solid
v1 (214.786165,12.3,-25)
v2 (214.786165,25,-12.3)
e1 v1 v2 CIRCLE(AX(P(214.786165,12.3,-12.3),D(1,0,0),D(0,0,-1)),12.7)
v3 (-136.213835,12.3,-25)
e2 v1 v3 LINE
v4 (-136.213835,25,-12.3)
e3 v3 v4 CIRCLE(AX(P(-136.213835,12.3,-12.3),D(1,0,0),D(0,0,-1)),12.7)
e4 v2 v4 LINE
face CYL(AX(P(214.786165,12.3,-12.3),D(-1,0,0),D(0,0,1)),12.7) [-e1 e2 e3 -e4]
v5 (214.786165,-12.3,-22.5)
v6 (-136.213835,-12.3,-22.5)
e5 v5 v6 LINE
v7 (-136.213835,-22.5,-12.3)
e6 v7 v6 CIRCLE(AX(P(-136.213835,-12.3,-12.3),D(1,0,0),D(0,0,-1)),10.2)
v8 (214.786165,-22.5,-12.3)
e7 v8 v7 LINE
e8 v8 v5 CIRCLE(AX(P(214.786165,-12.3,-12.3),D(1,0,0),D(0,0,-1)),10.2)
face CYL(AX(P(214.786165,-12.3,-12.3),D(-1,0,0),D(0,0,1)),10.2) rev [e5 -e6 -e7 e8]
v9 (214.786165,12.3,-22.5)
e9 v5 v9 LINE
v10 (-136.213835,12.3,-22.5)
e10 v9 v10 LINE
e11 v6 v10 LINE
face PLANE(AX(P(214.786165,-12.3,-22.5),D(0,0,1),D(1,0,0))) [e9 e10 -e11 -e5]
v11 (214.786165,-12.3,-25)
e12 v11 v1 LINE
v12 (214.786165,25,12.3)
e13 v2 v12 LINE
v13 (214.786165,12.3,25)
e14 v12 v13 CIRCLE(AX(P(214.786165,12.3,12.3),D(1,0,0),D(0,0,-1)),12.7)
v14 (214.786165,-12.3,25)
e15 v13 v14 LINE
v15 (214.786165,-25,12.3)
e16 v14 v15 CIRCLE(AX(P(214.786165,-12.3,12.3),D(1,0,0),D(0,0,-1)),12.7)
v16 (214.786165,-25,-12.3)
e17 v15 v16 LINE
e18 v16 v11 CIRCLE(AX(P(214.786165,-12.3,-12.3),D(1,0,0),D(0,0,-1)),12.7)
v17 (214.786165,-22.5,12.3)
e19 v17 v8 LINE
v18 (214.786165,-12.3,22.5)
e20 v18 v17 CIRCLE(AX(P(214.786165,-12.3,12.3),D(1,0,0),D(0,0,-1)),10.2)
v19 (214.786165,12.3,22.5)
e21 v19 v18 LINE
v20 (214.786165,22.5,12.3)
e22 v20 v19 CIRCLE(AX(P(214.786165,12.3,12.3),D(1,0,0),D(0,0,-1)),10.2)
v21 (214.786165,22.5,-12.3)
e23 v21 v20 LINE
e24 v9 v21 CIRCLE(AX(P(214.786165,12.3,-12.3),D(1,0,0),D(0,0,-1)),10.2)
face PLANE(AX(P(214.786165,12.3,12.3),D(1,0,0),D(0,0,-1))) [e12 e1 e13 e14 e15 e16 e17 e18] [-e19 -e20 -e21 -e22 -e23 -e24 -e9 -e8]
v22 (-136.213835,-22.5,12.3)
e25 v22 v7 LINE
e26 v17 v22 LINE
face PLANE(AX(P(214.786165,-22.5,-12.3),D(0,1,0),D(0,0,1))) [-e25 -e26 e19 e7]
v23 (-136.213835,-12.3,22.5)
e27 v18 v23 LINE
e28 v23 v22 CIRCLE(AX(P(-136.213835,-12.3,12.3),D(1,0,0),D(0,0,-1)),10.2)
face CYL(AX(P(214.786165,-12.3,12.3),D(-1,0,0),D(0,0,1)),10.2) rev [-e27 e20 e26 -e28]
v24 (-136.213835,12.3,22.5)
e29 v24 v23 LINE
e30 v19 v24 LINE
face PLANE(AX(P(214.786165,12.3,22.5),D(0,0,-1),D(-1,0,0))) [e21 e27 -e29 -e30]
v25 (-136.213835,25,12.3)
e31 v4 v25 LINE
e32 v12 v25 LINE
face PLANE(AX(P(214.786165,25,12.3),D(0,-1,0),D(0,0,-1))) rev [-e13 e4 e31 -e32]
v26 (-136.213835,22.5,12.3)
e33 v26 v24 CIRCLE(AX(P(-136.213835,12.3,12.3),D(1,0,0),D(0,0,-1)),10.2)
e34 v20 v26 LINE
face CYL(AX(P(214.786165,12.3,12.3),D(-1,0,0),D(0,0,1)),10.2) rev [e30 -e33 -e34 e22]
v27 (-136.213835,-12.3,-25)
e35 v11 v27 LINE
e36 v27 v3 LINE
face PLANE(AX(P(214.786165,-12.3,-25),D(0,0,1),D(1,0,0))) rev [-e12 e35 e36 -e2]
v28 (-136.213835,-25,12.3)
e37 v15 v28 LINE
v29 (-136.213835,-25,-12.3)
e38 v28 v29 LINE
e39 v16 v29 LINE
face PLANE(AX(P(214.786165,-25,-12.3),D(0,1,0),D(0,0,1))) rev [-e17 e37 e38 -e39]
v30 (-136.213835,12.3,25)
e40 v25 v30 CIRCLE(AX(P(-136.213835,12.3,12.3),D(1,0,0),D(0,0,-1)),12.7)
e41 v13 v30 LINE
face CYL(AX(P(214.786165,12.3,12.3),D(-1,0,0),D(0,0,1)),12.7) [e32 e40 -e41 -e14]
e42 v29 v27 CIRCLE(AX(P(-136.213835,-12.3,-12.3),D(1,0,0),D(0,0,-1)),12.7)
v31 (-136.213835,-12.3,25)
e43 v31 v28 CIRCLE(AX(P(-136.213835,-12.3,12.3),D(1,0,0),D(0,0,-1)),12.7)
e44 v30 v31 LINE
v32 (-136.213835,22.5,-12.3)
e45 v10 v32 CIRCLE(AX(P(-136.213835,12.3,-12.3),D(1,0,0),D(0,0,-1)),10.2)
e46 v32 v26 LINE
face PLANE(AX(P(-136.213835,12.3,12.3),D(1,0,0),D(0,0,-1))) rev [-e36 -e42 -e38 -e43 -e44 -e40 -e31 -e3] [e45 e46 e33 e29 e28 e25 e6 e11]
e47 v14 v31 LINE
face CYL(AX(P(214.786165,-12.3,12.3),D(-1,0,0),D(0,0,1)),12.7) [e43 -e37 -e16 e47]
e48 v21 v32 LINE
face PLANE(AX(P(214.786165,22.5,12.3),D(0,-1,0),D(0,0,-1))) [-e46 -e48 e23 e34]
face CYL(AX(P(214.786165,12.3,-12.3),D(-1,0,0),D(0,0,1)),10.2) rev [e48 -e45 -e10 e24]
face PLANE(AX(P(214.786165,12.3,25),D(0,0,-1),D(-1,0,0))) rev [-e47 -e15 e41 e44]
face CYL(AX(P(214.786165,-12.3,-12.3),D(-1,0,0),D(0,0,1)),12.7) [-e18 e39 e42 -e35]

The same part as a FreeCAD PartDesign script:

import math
import FreeCAD as App
import Part
import Sketcher

V = App.Vector

doc = App.newDocument("Part")
params = doc.addObject("Spreadsheet::Sheet", "Params")
for row, (alias, value) in enumerate([
    ("sketch1_radius", "12.7 mm"),
    ("sketch1_radius2", "10.2 mm"),
    ("sketch1_width", "24.6 mm"),
    ("pad1_length", "351 mm"),
], start=1):
    params.set(f"A{row}", alias)
    params.set(f"B{row}", "=" + value)
    params.setAlias(f"B{row}", alias)

body = doc.addObject("PartDesign::Body", "Body")

# Sketch on YZ plane
sketch1 = doc.addObject("Sketcher::SketchObject", "Sketch")
body.addObject(sketch1)
sketch1.AttachmentSupport = (doc.YZ_Plane, [""])
sketch1.MapMode = "FlatFace"
sketch1.AttachmentOffset = App.Placement(V(0, 0, -136.213835), App.Rotation())
sketch1.addGeometry(Part.LineSegment(V(-12.3, -25, 0), V(12.3, -25, 0)), False)
sketch1.addGeometry(Part.ArcOfCircle(Part.Circle(V(12.3, -12.3, 0), V(0, 0, 1), 12.7), math.radians(-90), math.radians(0)), False)
sketch1.addGeometry(Part.LineSegment(V(25, -12.3, 0), V(25, 12.3, 0)), False)
sketch1.addGeometry(Part.ArcOfCircle(Part.Circle(V(12.3, 12.3, 0), V(0, 0, 1), 12.7), math.radians(0), math.radians(90)), False)
sketch1.addGeometry(Part.LineSegment(V(12.3, 25, 0), V(-12.3, 25, 0)), False)
sketch1.addGeometry(Part.ArcOfCircle(Part.Circle(V(-12.3, 12.3, 0), V(0, 0, 1), 12.7), math.radians(90), math.radians(180)), False)
sketch1.addGeometry(Part.LineSegment(V(-25, 12.3, 0), V(-25, -12.3, 0)), False)
sketch1.addGeometry(Part.ArcOfCircle(Part.Circle(V(-12.3, -12.3, 0), V(0, 0, 1), 12.7), math.radians(180), math.radians(270)), False)
sketch1.addGeometry(Part.LineSegment(V(12.3, -22.5, 0), V(-12.3, -22.5, 0)), False)
sketch1.addGeometry(Part.ArcOfCircle(Part.Circle(V(-12.3, -12.3, 0), V(0, 0, 1), 10.2), math.radians(180), math.radians(270)), False)
sketch1.addGeometry(Part.LineSegment(V(-22.5, -12.3, 0), V(-22.5, 12.3, 0)), False)
sketch1.addGeometry(Part.ArcOfCircle(Part.Circle(V(-12.3, 12.3, 0), V(0, 0, 1), 10.2), math.radians(90), math.radians(180)), False)
sketch1.addGeometry(Part.LineSegment(V(-12.3, 22.5, 0), V(12.3, 22.5, 0)), False)
sketch1.addGeometry(Part.ArcOfCircle(Part.Circle(V(12.3, 12.3, 0), V(0, 0, 1), 10.2), math.radians(0), math.radians(90)), False)
sketch1.addGeometry(Part.LineSegment(V(22.5, 12.3, 0), V(22.5, -12.3, 0)), False)
sketch1.addGeometry(Part.ArcOfCircle(Part.Circle(V(12.3, -12.3, 0), V(0, 0, 1), 10.2), math.radians(-90), math.radians(0)), False)
sketch1.addConstraint(Sketcher.Constraint("Tangent", 0, 2, 1, 1))
sketch1.addConstraint(Sketcher.Constraint("Tangent", 1, 2, 2, 1))
sketch1.addConstraint(Sketcher.Constraint("Tangent", 2, 2, 3, 1))
sketch1.addConstraint(Sketcher.Constraint("Tangent", 3, 2, 4, 1))
sketch1.addConstraint(Sketcher.Constraint("Tangent", 4, 2, 5, 1))
sketch1.addConstraint(Sketcher.Constraint("Tangent", 5, 2, 6, 1))
sketch1.addConstraint(Sketcher.Constraint("Tangent", 6, 2, 7, 1))
sketch1.addConstraint(Sketcher.Constraint("Tangent", 7, 2, 0, 1))
sketch1.addConstraint(Sketcher.Constraint("Tangent", 8, 2, 9, 2))
sketch1.addConstraint(Sketcher.Constraint("Tangent", 9, 1, 10, 1))
sketch1.addConstraint(Sketcher.Constraint("Tangent", 10, 2, 11, 2))
sketch1.addConstraint(Sketcher.Constraint("Tangent", 11, 1, 12, 1))
sketch1.addConstraint(Sketcher.Constraint("Tangent", 12, 2, 13, 2))
sketch1.addConstraint(Sketcher.Constraint("Tangent", 13, 1, 14, 1))
sketch1.addConstraint(Sketcher.Constraint("Tangent", 14, 2, 15, 2))
sketch1.addConstraint(Sketcher.Constraint("Tangent", 15, 1, 8, 1))
sketch1.addConstraint(Sketcher.Constraint("Horizontal", 0))
sketch1.addConstraint(Sketcher.Constraint("Vertical", 2))
sketch1.addConstraint(Sketcher.Constraint("Horizontal", 4))
sketch1.addConstraint(Sketcher.Constraint("Vertical", 6))
sketch1.addConstraint(Sketcher.Constraint("Horizontal", 8))
sketch1.addConstraint(Sketcher.Constraint("Vertical", 10))
sketch1.addConstraint(Sketcher.Constraint("Horizontal", 12))
sketch1.addConstraint(Sketcher.Constraint("Vertical", 14))
sketch1.addConstraint(Sketcher.Constraint("Coincident", 9, 3, 7, 3))
sketch1.addConstraint(Sketcher.Constraint("Coincident", 11, 3, 5, 3))
sketch1.addConstraint(Sketcher.Constraint("Coincident", 13, 3, 3, 3))
sketch1.addConstraint(Sketcher.Constraint("Equal", 1, 3))
sketch1.addConstraint(Sketcher.Constraint("Equal", 3, 5))
sketch1.addConstraint(Sketcher.Constraint("Equal", 5, 7))
sketch1.addConstraint(Sketcher.Constraint("Equal", 13, 15))
sketch1.addConstraint(Sketcher.Constraint("Symmetric", 1, 3, 5, 3, -1, 1))
sketch1.addConstraint(Sketcher.Constraint("Equal", 12, 2))
sketch1.addConstraint(Sketcher.Constraint("Radius", 1, 12.7))
sketch1.addConstraint(Sketcher.Constraint("Radius", 9, 10.2))
sketch1.addConstraint(Sketcher.Constraint("DistanceX", 0, 1, 0, 2, 24.6))
sketch1.setExpression("Constraints[33]", "Params.sketch1_radius")
sketch1.setExpression("Constraints[34]", "Params.sketch1_radius2")
sketch1.setExpression("Constraints[35]", "Params.sketch1_width")
pad1 = doc.addObject("PartDesign::Pad", "Pad")
body.addObject(pad1)
pad1.Profile = sketch1
pad1.setExpression("Length", "Params.pad1_length")

doc.recompute()
